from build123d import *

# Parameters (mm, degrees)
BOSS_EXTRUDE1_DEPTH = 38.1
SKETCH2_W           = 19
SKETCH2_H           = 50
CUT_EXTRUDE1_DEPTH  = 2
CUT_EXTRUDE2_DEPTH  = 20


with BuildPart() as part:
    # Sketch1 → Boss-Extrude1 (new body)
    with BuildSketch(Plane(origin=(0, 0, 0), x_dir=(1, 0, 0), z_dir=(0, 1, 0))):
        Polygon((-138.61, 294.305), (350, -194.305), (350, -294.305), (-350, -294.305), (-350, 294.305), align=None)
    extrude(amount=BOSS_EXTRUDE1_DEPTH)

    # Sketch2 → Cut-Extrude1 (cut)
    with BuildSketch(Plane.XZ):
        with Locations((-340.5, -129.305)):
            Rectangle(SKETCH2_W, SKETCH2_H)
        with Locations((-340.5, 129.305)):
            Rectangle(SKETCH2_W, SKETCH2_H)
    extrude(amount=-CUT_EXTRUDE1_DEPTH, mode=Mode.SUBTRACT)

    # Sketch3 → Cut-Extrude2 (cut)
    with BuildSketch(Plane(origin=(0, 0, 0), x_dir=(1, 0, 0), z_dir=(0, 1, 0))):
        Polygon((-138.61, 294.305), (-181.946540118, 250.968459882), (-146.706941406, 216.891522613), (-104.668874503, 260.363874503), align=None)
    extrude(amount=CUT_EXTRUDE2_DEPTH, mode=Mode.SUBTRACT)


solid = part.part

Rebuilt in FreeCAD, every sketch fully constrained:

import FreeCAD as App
import Part
import Sketcher

V = App.Vector
Q = App.Units.Quantity


def add_polygon(sketch, points):
    """Adds a closed chain of lines whose ends are joined by coincident constraints."""
    first, n = sketch.GeometryCount, len(points)
    for a, b in zip(points, points[1:] + points[:1]):
        sketch.addGeometry(Part.LineSegment(App.Vector(*a, 0), App.Vector(*b, 0)), False)
    for i in range(n):
        sketch.addConstraint(Sketcher.Constraint("Coincident", first + i, 2, first + (i + 1) % n, 1))

doc = App.newDocument("Part")
body = doc.addObject("PartDesign::Body", "Body")

# Sketch on XZ plane
sketch1 = doc.addObject("Sketcher::SketchObject", "Sketch")
body.addObject(sketch1)
sketch1.AttachmentSupport = (doc.XZ_Plane, [""])
sketch1.MapMode = "FlatFace"
add_polygon(sketch1, [(350, 194), (-139, -294), (-350, -294), (-350, 294), (350, 294)])  # lines 0-4
sketch1.addConstraint(Sketcher.Constraint("Horizontal", 1))
sketch1.addConstraint(Sketcher.Constraint("Vertical", 2))
sketch1.addConstraint(Sketcher.Constraint("Horizontal", 3))
sketch1.addConstraint(Sketcher.Constraint("Vertical", 4))
sketch1.addConstraint(Sketcher.Constraint("Symmetric", 1, 2, 3, 2, -1, 1))
sketch1.addConstraint(Sketcher.Constraint("DistanceX", 3, 1, 3, 2, Q("700 mm")))
sketch1.addConstraint(Sketcher.Constraint("DistanceY", 4, 2, 4, 1, Q("100 mm")))
sketch1.addConstraint(Sketcher.Constraint("Angle", 0, Q("-135 deg")))
sketch1.addConstraint(Sketcher.Constraint("DistanceX", 1, 2, 1, 1, Q("211.39 mm")))
pad1 = doc.addObject("PartDesign::Pad", "Pad")
body.addObject(pad1)
pad1.Profile = sketch1
pad1.Length = 38.1
pad1.Reversed = True

# Sketch on XZ plane
sketch2 = doc.addObject("Sketcher::SketchObject", "Sketch001")
body.addObject(sketch2)
sketch2.AttachmentSupport = (doc.XZ_Plane, [""])
sketch2.MapMode = "FlatFace"
add_polygon(sketch2, [(-350, -104), (-350, -154), (-331, -154), (-331, -104)])  # lines 0-3
add_polygon(sketch2, [(-350, 154), (-350, 104), (-331, 104), (-331, 154)])  # lines 4-7
sketch2.addConstraint(Sketcher.Constraint("Vertical", 0))
sketch2.addConstraint(Sketcher.Constraint("Horizontal", 1))
sketch2.addConstraint(Sketcher.Constraint("Vertical", 2))
sketch2.addConstraint(Sketcher.Constraint("Horizontal", 3))
sketch2.addConstraint(Sketcher.Constraint("Vertical", 4))
sketch2.addConstraint(Sketcher.Constraint("Horizontal", 5))
sketch2.addConstraint(Sketcher.Constraint("Vertical", 6))
sketch2.addConstraint(Sketcher.Constraint("Horizontal", 7))
sketch2.addConstraint(Sketcher.Constraint("Symmetric", 3, 2, 4, 2, -1))
sketch2.addConstraint(Sketcher.Constraint("Symmetric", 1, 2, 6, 2, -1))
sketch2.addConstraint(Sketcher.Constraint("DistanceX", 1, 1, 1, 2, Q("19 mm")))
sketch2.addConstraint(Sketcher.Constraint("DistanceY", 0, 2, 0, 1, Q("50 mm")))
sketch2.addConstraint(Sketcher.Constraint("DistanceX", 0, 2, -1, 1, Q("350 mm")))
sketch2.addConstraint(Sketcher.Constraint("DistanceY", 3, 2, 4, 2, Q("208.61 mm")))
pocket1 = doc.addObject("PartDesign::Pocket", "Pocket")
body.addObject(pocket1)
pocket1.Profile = sketch2
pocket1.Length = 2

# Sketch on XZ plane
sketch3 = doc.addObject("Sketcher::SketchObject", "Sketch002")
body.addObject(sketch3)
sketch3.AttachmentSupport = (doc.XZ_Plane, [""])
sketch3.MapMode = "FlatFace"
add_polygon(sketch3, [(-139, -294), (-182, -251), (-147, -217), (-105, -260)])  # lines 0-3
sketch3.addConstraint(Sketcher.Constraint("Perpendicular", 1, 2))
sketch3.addConstraint(Sketcher.Constraint("Perpendicular", 0, 3))
sketch3.addConstraint(Sketcher.Constraint("Angle", 0, Q("135 deg")))
sketch3.addConstraint(Sketcher.Constraint("Distance", 3, Q("48 mm")))
sketch3.addConstraint(Sketcher.Constraint("DistanceX", 3, 2, -1, 1, Q("138.61 mm")))
sketch3.addConstraint(Sketcher.Constraint("DistanceY", 3, 2, -1, 1, Q("294.305 mm")))
sketch3.addConstraint(Sketcher.Constraint("DistanceX", 0, 2, 1, 2, Q("35.239599 mm")))
sketch3.addConstraint(Sketcher.Constraint("DistanceX", 0, 2, -1, 1, Q("181.94654 mm")))
pocket2 = doc.addObject("PartDesign::Pocket", "Pocket001")
body.addObject(pocket2)
pocket2.Profile = sketch3
pocket2.Length = 20

doc.recompute()
